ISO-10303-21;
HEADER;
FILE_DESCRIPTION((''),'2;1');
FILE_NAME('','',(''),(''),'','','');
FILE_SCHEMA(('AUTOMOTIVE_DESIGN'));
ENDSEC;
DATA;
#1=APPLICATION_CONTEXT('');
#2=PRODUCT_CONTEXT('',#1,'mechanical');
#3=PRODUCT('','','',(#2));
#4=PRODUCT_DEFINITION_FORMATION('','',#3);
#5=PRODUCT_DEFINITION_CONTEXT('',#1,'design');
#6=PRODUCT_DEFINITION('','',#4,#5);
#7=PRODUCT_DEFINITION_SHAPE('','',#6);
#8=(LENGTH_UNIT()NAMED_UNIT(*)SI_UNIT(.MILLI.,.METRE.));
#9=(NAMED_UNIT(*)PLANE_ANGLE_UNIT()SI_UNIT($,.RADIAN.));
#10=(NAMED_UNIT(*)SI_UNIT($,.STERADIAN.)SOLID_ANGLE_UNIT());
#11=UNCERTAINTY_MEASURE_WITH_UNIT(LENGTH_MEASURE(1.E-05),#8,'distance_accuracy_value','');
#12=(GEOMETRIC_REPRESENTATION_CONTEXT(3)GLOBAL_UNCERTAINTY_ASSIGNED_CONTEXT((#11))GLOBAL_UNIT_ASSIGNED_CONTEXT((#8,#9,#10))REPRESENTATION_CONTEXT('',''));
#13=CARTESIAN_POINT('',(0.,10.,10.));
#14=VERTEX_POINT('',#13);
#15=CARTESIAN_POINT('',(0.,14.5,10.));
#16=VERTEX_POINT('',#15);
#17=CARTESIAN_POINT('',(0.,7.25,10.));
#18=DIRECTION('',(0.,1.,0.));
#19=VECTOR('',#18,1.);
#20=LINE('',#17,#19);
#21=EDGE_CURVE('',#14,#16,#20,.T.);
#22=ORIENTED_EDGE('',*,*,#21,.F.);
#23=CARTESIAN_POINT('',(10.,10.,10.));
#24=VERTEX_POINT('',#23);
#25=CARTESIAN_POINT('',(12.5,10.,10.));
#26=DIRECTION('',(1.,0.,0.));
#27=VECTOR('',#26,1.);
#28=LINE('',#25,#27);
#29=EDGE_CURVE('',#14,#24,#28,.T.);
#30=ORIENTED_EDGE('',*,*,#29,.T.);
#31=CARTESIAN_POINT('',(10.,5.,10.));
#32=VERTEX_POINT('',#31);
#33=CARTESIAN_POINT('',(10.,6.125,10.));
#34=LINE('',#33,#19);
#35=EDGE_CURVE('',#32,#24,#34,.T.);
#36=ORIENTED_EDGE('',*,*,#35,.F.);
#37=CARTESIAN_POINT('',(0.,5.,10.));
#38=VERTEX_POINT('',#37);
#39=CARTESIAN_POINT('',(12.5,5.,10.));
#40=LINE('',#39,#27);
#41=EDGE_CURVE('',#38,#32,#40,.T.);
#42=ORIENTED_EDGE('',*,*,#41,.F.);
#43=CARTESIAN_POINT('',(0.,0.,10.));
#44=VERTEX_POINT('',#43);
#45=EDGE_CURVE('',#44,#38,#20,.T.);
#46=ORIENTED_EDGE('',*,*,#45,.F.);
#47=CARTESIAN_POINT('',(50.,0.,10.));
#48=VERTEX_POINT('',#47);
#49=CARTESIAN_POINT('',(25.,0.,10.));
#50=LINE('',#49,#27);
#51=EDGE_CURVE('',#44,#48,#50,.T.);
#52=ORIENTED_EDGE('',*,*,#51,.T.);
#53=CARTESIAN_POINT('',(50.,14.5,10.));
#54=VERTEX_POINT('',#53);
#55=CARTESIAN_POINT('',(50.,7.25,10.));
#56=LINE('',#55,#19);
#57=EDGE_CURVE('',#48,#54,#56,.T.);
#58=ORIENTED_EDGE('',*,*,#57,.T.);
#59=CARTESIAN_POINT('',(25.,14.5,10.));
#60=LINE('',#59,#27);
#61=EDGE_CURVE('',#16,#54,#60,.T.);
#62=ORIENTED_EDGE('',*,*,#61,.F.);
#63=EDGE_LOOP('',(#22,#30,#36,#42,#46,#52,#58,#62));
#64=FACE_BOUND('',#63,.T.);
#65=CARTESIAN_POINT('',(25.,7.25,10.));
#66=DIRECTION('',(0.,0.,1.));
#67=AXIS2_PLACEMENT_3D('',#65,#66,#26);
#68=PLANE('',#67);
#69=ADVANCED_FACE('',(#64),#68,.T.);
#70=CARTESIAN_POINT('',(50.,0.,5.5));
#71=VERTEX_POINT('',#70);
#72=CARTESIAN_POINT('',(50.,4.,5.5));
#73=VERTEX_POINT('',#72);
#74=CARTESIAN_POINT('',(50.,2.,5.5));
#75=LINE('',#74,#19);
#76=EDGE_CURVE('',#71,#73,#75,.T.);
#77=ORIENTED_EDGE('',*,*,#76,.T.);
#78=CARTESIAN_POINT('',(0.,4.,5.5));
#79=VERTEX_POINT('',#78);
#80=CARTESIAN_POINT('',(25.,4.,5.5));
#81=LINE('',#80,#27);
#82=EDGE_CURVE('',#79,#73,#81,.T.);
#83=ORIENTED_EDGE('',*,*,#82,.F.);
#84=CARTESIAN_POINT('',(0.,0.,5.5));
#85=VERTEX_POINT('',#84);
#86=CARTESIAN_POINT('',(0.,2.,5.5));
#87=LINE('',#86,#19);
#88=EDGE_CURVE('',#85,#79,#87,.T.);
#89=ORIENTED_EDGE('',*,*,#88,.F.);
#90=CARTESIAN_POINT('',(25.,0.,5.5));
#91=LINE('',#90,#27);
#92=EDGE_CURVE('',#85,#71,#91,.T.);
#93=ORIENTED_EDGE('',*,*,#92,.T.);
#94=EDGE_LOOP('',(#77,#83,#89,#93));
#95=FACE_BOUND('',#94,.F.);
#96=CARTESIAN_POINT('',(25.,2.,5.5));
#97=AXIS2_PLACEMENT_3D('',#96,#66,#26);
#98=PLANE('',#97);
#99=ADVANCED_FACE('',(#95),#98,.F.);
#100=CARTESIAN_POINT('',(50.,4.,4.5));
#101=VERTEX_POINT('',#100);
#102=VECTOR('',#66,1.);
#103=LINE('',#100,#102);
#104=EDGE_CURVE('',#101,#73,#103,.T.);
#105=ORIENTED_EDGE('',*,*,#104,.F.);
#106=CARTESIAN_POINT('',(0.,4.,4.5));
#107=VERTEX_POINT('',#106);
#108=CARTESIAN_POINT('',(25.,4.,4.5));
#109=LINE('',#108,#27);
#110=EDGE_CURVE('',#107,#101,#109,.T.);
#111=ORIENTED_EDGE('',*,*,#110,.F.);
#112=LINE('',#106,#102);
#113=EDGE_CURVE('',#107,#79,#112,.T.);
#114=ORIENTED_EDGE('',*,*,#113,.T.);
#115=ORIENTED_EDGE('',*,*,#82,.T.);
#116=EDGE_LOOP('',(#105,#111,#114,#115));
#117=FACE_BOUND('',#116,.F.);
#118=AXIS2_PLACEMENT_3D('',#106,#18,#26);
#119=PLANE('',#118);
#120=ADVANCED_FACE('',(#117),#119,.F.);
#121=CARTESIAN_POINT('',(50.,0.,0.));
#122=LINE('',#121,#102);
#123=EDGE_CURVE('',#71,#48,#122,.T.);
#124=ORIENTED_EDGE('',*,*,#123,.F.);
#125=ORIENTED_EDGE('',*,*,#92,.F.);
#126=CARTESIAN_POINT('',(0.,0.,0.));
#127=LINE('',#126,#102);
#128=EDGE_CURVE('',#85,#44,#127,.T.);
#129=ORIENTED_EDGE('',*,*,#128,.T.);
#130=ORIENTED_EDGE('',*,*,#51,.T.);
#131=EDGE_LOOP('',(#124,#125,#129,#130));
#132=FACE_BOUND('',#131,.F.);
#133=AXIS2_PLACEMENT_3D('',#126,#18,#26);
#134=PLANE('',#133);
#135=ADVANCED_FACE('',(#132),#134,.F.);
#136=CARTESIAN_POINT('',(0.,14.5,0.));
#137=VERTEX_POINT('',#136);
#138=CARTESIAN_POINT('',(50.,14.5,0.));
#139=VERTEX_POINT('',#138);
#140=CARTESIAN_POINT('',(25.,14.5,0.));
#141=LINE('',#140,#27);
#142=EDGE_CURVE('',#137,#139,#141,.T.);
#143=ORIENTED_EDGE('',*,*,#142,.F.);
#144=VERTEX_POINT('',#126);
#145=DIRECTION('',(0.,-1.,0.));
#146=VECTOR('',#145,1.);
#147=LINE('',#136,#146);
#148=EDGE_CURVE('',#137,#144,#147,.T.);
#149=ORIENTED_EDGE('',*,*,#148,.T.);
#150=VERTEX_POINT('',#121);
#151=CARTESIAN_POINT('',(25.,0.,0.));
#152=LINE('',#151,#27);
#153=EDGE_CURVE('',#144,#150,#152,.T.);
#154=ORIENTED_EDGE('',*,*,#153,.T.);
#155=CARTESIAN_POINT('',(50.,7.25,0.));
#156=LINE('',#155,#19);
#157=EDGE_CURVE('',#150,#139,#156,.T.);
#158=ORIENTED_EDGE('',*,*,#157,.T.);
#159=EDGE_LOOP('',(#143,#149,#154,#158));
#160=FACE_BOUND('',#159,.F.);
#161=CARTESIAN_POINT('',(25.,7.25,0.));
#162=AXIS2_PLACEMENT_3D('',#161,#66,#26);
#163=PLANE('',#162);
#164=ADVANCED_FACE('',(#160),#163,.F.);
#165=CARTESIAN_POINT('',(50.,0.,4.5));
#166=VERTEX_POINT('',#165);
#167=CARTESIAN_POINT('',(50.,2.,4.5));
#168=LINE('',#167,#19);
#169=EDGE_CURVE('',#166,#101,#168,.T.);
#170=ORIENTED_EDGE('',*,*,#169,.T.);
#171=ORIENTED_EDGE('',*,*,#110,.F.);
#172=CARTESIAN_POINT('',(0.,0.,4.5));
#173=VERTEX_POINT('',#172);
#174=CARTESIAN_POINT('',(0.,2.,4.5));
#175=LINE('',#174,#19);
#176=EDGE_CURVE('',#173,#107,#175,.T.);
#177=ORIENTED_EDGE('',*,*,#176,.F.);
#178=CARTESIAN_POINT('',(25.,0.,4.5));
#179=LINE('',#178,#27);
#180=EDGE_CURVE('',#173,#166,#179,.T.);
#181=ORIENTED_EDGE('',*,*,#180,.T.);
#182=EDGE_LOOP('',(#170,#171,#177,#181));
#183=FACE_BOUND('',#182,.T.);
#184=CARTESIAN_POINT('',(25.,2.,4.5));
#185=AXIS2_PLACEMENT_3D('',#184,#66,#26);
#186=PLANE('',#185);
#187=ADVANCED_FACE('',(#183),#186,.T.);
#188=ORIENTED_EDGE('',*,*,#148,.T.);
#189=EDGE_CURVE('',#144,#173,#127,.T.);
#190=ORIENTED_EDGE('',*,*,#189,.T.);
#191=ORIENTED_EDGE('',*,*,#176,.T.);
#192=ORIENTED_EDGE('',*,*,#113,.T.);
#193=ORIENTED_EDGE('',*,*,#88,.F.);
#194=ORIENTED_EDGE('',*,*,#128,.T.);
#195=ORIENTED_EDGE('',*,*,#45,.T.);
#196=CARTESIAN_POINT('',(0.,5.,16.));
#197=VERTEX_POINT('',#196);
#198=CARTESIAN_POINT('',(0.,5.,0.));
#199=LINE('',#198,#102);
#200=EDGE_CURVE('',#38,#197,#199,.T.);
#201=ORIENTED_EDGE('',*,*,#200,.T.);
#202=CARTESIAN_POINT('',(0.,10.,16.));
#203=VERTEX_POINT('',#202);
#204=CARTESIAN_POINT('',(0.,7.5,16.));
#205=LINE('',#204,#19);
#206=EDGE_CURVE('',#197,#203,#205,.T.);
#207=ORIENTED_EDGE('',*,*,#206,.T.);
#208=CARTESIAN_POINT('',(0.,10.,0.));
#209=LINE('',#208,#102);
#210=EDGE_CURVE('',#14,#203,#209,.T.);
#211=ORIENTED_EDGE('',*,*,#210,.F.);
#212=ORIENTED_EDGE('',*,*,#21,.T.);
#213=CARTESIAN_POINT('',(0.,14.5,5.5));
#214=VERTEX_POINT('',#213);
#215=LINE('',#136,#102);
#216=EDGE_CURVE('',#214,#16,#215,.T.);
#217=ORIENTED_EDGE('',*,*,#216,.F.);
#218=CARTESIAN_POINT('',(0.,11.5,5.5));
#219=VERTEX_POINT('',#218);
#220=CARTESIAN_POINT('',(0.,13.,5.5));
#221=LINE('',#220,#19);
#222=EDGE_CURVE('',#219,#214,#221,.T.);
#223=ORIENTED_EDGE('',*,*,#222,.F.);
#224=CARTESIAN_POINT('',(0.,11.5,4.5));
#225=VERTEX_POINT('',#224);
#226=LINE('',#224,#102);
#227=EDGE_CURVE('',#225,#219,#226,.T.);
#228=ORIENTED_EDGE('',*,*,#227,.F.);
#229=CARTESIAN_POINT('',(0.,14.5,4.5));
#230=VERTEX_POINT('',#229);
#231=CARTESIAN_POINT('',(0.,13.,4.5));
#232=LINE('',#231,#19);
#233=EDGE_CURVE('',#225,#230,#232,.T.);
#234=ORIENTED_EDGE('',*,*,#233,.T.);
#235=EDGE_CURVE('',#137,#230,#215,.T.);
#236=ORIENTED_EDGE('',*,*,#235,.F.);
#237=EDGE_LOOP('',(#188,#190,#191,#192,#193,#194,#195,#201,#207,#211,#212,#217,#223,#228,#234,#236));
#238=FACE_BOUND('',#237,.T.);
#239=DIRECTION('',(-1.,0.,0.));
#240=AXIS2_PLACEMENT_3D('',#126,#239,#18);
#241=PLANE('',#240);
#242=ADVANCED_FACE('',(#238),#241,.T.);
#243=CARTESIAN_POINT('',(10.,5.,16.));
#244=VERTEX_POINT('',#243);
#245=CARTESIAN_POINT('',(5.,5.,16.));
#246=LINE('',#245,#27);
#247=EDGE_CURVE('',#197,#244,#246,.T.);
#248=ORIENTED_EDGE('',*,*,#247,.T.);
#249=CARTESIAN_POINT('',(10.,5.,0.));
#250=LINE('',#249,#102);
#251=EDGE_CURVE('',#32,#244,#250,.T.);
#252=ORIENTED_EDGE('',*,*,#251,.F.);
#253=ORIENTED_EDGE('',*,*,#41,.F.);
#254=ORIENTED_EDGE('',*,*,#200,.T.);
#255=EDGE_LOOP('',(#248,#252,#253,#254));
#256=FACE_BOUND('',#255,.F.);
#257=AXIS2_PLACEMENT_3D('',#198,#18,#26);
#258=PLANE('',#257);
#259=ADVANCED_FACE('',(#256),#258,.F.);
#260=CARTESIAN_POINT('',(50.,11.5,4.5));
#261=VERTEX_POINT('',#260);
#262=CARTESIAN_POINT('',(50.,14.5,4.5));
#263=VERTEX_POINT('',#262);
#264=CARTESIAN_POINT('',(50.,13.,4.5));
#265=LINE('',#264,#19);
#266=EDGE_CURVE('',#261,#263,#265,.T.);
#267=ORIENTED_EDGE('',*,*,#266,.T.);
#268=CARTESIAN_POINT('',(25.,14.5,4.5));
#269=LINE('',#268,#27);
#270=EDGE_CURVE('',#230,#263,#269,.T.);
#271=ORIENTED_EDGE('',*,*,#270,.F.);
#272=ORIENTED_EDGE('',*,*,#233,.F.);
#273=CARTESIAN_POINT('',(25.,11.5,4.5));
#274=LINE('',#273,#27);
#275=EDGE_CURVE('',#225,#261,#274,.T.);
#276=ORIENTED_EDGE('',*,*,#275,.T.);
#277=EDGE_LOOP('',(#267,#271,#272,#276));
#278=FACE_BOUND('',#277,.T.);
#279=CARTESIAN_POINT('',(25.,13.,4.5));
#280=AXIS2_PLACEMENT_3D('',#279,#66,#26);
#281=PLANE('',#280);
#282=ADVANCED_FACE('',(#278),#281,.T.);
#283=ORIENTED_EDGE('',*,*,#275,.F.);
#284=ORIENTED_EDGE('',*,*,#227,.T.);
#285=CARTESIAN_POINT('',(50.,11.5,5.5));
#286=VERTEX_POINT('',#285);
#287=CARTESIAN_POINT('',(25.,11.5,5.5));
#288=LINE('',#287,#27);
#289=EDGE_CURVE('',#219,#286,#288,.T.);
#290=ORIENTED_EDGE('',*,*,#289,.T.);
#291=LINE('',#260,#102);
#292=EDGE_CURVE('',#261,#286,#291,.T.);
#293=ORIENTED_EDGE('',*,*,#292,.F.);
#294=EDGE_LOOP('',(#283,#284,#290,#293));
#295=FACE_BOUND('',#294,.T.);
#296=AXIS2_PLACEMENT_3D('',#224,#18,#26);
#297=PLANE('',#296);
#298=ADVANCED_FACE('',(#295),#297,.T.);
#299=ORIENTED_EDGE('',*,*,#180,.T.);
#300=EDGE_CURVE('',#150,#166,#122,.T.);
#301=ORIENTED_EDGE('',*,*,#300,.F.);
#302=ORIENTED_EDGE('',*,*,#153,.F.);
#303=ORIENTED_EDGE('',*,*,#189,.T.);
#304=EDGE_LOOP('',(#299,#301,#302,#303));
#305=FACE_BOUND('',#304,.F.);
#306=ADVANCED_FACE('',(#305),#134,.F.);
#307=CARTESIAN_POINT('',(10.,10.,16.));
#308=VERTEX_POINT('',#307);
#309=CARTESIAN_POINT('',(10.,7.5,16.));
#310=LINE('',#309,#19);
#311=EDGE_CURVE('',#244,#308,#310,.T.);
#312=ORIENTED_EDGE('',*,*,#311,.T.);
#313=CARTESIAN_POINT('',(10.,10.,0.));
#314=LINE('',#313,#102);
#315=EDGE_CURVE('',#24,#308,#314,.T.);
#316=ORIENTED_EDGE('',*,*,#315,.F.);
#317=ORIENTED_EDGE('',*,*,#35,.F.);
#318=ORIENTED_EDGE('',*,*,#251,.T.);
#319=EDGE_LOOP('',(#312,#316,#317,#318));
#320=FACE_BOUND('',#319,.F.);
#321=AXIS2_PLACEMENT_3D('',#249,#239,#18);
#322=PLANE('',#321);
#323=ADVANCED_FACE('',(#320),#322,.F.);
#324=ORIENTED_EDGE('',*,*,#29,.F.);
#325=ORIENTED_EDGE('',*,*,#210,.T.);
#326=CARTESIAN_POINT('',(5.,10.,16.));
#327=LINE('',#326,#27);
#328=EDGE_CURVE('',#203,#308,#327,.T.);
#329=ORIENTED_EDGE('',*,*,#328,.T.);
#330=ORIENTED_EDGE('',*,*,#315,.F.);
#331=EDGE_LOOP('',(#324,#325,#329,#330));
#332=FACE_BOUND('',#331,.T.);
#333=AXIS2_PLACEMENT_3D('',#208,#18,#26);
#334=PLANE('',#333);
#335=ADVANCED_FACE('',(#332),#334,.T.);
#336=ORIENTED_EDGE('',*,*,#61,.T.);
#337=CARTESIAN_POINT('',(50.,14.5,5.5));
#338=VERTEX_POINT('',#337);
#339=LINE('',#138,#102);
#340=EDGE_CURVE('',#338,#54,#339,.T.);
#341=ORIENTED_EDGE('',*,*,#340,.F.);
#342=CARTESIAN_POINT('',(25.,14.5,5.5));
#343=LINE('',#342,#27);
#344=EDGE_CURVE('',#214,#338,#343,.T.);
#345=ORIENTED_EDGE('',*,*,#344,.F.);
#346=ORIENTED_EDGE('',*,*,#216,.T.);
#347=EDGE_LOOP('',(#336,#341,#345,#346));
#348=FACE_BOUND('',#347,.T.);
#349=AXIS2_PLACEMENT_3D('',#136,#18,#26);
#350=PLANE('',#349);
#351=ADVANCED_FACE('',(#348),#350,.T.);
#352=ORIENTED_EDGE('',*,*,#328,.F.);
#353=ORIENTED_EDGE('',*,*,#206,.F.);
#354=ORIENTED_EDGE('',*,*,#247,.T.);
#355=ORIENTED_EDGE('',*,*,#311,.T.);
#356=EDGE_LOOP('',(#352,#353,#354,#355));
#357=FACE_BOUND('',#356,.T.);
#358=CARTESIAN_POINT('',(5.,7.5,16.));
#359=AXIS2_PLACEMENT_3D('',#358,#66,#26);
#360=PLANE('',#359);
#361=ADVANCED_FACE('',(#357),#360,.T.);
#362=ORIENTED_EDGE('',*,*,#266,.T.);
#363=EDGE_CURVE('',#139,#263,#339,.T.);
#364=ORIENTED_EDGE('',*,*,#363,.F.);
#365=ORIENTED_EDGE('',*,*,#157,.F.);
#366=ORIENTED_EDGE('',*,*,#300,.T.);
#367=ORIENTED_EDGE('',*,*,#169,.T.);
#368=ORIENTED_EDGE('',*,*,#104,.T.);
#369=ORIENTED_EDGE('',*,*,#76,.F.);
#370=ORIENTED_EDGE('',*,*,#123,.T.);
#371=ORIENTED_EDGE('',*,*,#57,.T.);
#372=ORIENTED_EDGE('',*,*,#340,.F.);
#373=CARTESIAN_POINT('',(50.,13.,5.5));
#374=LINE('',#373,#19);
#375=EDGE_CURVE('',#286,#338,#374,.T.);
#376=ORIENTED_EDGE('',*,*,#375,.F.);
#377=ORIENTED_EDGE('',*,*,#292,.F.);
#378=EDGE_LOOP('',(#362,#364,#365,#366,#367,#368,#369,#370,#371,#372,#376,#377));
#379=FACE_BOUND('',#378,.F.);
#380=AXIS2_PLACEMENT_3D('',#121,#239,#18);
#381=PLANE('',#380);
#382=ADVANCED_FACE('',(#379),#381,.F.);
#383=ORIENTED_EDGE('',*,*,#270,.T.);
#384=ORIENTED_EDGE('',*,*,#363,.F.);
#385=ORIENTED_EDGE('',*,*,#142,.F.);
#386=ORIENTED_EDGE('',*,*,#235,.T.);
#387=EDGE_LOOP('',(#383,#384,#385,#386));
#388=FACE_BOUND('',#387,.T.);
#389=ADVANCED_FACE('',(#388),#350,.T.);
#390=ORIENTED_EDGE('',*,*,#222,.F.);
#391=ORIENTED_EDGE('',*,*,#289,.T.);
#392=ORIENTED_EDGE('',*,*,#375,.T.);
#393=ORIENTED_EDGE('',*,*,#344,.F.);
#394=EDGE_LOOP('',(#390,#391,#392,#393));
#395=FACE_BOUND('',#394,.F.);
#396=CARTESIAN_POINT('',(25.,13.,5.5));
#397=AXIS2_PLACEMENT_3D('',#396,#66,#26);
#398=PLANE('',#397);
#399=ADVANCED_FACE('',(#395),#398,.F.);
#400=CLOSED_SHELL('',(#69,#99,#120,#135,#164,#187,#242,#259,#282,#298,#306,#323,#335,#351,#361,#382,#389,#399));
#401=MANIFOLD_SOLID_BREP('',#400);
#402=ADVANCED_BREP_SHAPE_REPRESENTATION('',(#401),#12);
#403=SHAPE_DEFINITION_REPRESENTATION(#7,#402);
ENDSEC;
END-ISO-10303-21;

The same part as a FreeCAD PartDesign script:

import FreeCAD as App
import Part
import Sketcher
from FreeCAD import Vector
Q = App.Units.Quantity

doc = App.newDocument("Part")
body = doc.addObject("PartDesign::Body", "Body")

# Sketch on XY plane
sketch1 = doc.addObject("Sketcher::SketchObject", "Sketch")
body.addObject(sketch1)
sketch1.AttachmentSupport = (doc.XY_Plane, [""])
sketch1.MapMode = "FlatFace"
sketch1.AttachmentOffset = App.Placement(Vector(0, 0, 4.5), App.Rotation())
sketch1.addGeometry(Part.LineSegment(Vector(0, 14.5, 0), Vector(0, 11.5, 0)), False)
sketch1.addGeometry(Part.LineSegment(Vector(0, 11.5, 0), Vector(50, 11.5, 0)), False)
sketch1.addGeometry(Part.LineSegment(Vector(50, 11.5, 0), Vector(50, 14.5, 0)), False)
sketch1.addGeometry(Part.LineSegment(Vector(50, 14.5, 0), Vector(0, 14.5, 0)), False)
sketch1.addConstraint(Sketcher.Constraint("Coincident", 0, 2, 1, 1))
sketch1.addConstraint(Sketcher.Constraint("Coincident", 1, 2, 2, 1))
sketch1.addConstraint(Sketcher.Constraint("Coincident", 2, 2, 3, 1))
sketch1.addConstraint(Sketcher.Constraint("Coincident", 3, 2, 0, 1))
sketch1.addConstraint(Sketcher.Constraint("Vertical", 0))
sketch1.addConstraint(Sketcher.Constraint("Horizontal", 1))
sketch1.addConstraint(Sketcher.Constraint("Vertical", 2))
sketch1.addConstraint(Sketcher.Constraint("Horizontal", 3))
sketch1.addConstraint(Sketcher.Constraint("PointOnObject", 0, 2, -2))
sketch1.addConstraint(Sketcher.Constraint("DistanceX", 1, 1, 1, 2, Q("50 mm")))
sketch1.addConstraint(Sketcher.Constraint("DistanceY", 0, 2, 0, 1, Q("3 mm")))
sketch1.addConstraint(Sketcher.Constraint("DistanceY", -1, 1, 0, 2, Q("11.5 mm")))
pad1 = doc.addObject("PartDesign::Pad", "Pad")
body.addObject(pad1)
pad1.Profile = sketch1
pad1.Length = 1
body2 = doc.addObject("PartDesign::Body", "Body001")

# Sketch on XY plane
sketch2 = doc.addObject("Sketcher::SketchObject", "Sketch001")
body2.addObject(sketch2)
sketch2.AttachmentSupport = (doc.getObject("XY_Plane001"), [""])
sketch2.MapMode = "FlatFace"
sketch2.AttachmentOffset = App.Placement(Vector(0, 0, 4.5), App.Rotation())
sketch2.addGeometry(Part.LineSegment(Vector(0, 4, 0), Vector(0, 0, 0)), False)
sketch2.addGeometry(Part.LineSegment(Vector(0, 0, 0), Vector(50, 0, 0)), False)
sketch2.addGeometry(Part.LineSegment(Vector(50, 0, 0), Vector(50, 4, 0)), False)
sketch2.addGeometry(Part.LineSegment(Vector(50, 4, 0), Vector(0, 4, 0)), False)
sketch2.addConstraint(Sketcher.Constraint("Coincident", 0, 2, 1, 1))
sketch2.addConstraint(Sketcher.Constraint("Coincident", 1, 2, 2, 1))
sketch2.addConstraint(Sketcher.Constraint("Coincident", 2, 2, 3, 1))
sketch2.addConstraint(Sketcher.Constraint("Coincident", 3, 2, 0, 1))
sketch2.addConstraint(Sketcher.Constraint("Vertical", 0))
sketch2.addConstraint(Sketcher.Constraint("Horizontal", 1))
sketch2.addConstraint(Sketcher.Constraint("Vertical", 2))
sketch2.addConstraint(Sketcher.Constraint("Horizontal", 3))
sketch2.addConstraint(Sketcher.Constraint("Coincident", 0, 2, -1, 1))
sketch2.addConstraint(Sketcher.Constraint("DistanceX", 1, 1, 1, 2, Q("50 mm")))
sketch2.addConstraint(Sketcher.Constraint("DistanceY", 0, 2, 0, 1, Q("4 mm")))
pad2 = doc.addObject("PartDesign::Pad", "Pad001")
body2.addObject(pad2)
pad2.Profile = sketch2
pad2.Length = 1
body3 = doc.addObject("PartDesign::Body", "Body002")

# Sketch on XY plane
sketch3 = doc.addObject("Sketcher::SketchObject", "Sketch002")
body3.addObject(sketch3)
sketch3.AttachmentSupport = (doc.getObject("XY_Plane002"), [""])
sketch3.MapMode = "FlatFace"
sketch3.addGeometry(Part.LineSegment(Vector(0, 14.5, 0), Vector(0, 0, 0)), False)
sketch3.addGeometry(Part.LineSegment(Vector(0, 0, 0), Vector(50, 0, 0)), False)
sketch3.addGeometry(Part.LineSegment(Vector(50, 0, 0), Vector(50, 14.5, 0)), False)
sketch3.addGeometry(Part.LineSegment(Vector(50, 14.5, 0), Vector(0, 14.5, 0)), False)
sketch3.addConstraint(Sketcher.Constraint("Coincident", 0, 2, 1, 1))
sketch3.addConstraint(Sketcher.Constraint("Coincident", 1, 2, 2, 1))
sketch3.addConstraint(Sketcher.Constraint("Coincident", 2, 2, 3, 1))
sketch3.addConstraint(Sketcher.Constraint("Coincident", 3, 2, 0, 1))
sketch3.addConstraint(Sketcher.Constraint("Vertical", 0))
sketch3.addConstraint(Sketcher.Constraint("Horizontal", 1))
sketch3.addConstraint(Sketcher.Constraint("Vertical", 2))
sketch3.addConstraint(Sketcher.Constraint("Horizontal", 3))
sketch3.addConstraint(Sketcher.Constraint("Coincident", 0, 2, -1, 1))
sketch3.addConstraint(Sketcher.Constraint("DistanceX", 1, 1, 1, 2, Q("50 mm")))
sketch3.addConstraint(Sketcher.Constraint("DistanceY", 0, 2, 0, 1, Q("14.5 mm")))
pad3 = doc.addObject("PartDesign::Pad", "Pad002")
body3.addObject(pad3)
pad3.Profile = sketch3
pad3.Length = 10
doc.recompute()

boolean = doc.addObject("PartDesign::Boolean", "Boolean")
body3.addObject(boolean)
boolean.Type = "Cut"
boolean.addObjects([body2])
doc.recompute()

boolean2 = doc.addObject("PartDesign::Boolean", "Boolean001")
body3.addObject(boolean2)
boolean2.Type = "Cut"
boolean2.addObjects([body])
body4 = doc.addObject("PartDesign::Body", "Body003")

# Sketch on XY plane
sketch4 = doc.addObject("Sketcher::SketchObject", "Sketch003")
body4.addObject(sketch4)
sketch4.AttachmentSupport = (doc.getObject("XY_Plane003"), [""])
sketch4.MapMode = "FlatFace"
sketch4.addGeometry(Part.LineSegment(Vector(0, 10, 0), Vector(0, 5, 0)), False)
sketch4.addGeometry(Part.LineSegment(Vector(0, 5, 0), Vector(10, 5, 0)), False)
sketch4.addGeometry(Part.LineSegment(Vector(10, 5, 0), Vector(10, 10, 0)), False)
sketch4.addGeometry(Part.LineSegment(Vector(10, 10, 0), Vector(0, 10, 0)), False)
sketch4.addConstraint(Sketcher.Constraint("Coincident", 0, 2, 1, 1))
sketch4.addConstraint(Sketcher.Constraint("Coincident", 1, 2, 2, 1))
sketch4.addConstraint(Sketcher.Constraint("Coincident", 2, 2, 3, 1))
sketch4.addConstraint(Sketcher.Constraint("Coincident", 3, 2, 0, 1))
sketch4.addConstraint(Sketcher.Constraint("Vertical", 0))
sketch4.addConstraint(Sketcher.Constraint("Horizontal", 1))
sketch4.addConstraint(Sketcher.Constraint("Vertical", 2))
sketch4.addConstraint(Sketcher.Constraint("Horizontal", 3))
sketch4.addConstraint(Sketcher.Constraint("PointOnObject", 0, 2, -2))
sketch4.addConstraint(Sketcher.Constraint("DistanceX", 1, 1, 1, 2, Q("10 mm")))
sketch4.addConstraint(Sketcher.Constraint("DistanceY", 0, 2, 0, 1, Q("5 mm")))
sketch4.addConstraint(Sketcher.Constraint("DistanceY", -1, 1, 0, 2, Q("5 mm")))
pad4 = doc.addObject("PartDesign::Pad", "Pad003")
body4.addObject(pad4)
pad4.Profile = sketch4
pad4.Length = 16
doc.recompute()

boolean3 = doc.addObject("PartDesign::Boolean", "Boolean002")
body4.addObject(boolean3)
boolean3.Type = "Fuse"
boolean3.addObjects([body3])

doc.recompute()
